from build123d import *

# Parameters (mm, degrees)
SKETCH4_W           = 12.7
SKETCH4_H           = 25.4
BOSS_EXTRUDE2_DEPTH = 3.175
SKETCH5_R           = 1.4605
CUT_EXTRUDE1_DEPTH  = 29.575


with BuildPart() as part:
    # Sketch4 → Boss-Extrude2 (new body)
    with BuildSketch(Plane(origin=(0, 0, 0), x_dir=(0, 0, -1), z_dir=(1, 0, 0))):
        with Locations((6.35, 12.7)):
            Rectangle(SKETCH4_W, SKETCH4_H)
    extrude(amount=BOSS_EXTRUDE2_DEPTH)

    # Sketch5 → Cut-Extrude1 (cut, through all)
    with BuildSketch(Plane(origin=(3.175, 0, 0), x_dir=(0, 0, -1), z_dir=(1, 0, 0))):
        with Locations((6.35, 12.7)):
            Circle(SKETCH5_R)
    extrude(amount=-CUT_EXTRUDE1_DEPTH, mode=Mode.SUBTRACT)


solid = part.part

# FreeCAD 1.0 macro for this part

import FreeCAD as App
import Part
import Sketcher
from FreeCAD import Vector
Q = App.Units.Quantity


def add_polygon(sketch, points):
    """Adds a closed chain of lines whose ends are joined by coincident constraints."""
    first, n = sketch.GeometryCount, len(points)
    for a, b in zip(points, points[1:] + points[:1]):
        sketch.addGeometry(Part.LineSegment(App.Vector(*a, 0), App.Vector(*b, 0)), False)
    for i in range(n):
        sketch.addConstraint(Sketcher.Constraint("Coincident", first + i, 2, first + (i + 1) % n, 1))

doc = App.newDocument("Part")
body = doc.addObject("PartDesign::Body", "Body")

# Sketch on YZ plane
sketch1 = doc.addObject("Sketcher::SketchObject", "Sketch")
body.addObject(sketch1)
sketch1.AttachmentSupport = (doc.YZ_Plane, [""])
sketch1.MapMode = "FlatFace"
add_polygon(sketch1, [(25.4, 0), (0, 0), (0, -12.7), (25.4, -12.7)])  # lines 0-3
sketch1.addConstraint(Sketcher.Constraint("Horizontal", 0))
sketch1.addConstraint(Sketcher.Constraint("Vertical", 1))
sketch1.addConstraint(Sketcher.Constraint("Horizontal", 2))
sketch1.addConstraint(Sketcher.Constraint("Vertical", 3))
sketch1.addConstraint(Sketcher.Constraint("Coincident", 0, 2, -1, 1))
sketch1.addConstraint(Sketcher.Constraint("DistanceX", 0, 2, 0, 1, Q("1 in")))
sketch1.addConstraint(Sketcher.Constraint("DistanceY", 1, 2, 1, 1, Q("0.5 in")))
pad1 = doc.addObject("PartDesign::Pad", "Pad")
body.addObject(pad1)
pad1.Profile = sketch1
pad1.Length = Q("0.125 in")

# Sketch on YZ plane
sketch2 = doc.addObject("Sketcher::SketchObject", "Sketch001")
body.addObject(sketch2)
sketch2.AttachmentSupport = (doc.YZ_Plane, [""])
sketch2.MapMode = "FlatFace"
sketch2.AttachmentOffset = App.Placement(Vector(0, 0, 0.125 * 25.4), App.Rotation())
sketch2.addGeometry(Part.Circle(Vector(12.7, -6.35, 0), Vector(0, 0, 1), 1.4605), False)
sketch2.addConstraint(Sketcher.Constraint("Diameter", 0, Q("0.115 in")))
sketch2.addConstraint(Sketcher.Constraint("DistanceX", -1, 1, 0, 3, Q("0.5 in")))
sketch2.addConstraint(Sketcher.Constraint("DistanceY", 0, 3, -1, 1, Q("0.25 in")))
pocket1 = doc.addObject("PartDesign::Pocket", "Pocket")
body.addObject(pocket1)
pocket1.Profile = sketch2
pocket1.Type = "ThroughAll"

doc.recompute()
